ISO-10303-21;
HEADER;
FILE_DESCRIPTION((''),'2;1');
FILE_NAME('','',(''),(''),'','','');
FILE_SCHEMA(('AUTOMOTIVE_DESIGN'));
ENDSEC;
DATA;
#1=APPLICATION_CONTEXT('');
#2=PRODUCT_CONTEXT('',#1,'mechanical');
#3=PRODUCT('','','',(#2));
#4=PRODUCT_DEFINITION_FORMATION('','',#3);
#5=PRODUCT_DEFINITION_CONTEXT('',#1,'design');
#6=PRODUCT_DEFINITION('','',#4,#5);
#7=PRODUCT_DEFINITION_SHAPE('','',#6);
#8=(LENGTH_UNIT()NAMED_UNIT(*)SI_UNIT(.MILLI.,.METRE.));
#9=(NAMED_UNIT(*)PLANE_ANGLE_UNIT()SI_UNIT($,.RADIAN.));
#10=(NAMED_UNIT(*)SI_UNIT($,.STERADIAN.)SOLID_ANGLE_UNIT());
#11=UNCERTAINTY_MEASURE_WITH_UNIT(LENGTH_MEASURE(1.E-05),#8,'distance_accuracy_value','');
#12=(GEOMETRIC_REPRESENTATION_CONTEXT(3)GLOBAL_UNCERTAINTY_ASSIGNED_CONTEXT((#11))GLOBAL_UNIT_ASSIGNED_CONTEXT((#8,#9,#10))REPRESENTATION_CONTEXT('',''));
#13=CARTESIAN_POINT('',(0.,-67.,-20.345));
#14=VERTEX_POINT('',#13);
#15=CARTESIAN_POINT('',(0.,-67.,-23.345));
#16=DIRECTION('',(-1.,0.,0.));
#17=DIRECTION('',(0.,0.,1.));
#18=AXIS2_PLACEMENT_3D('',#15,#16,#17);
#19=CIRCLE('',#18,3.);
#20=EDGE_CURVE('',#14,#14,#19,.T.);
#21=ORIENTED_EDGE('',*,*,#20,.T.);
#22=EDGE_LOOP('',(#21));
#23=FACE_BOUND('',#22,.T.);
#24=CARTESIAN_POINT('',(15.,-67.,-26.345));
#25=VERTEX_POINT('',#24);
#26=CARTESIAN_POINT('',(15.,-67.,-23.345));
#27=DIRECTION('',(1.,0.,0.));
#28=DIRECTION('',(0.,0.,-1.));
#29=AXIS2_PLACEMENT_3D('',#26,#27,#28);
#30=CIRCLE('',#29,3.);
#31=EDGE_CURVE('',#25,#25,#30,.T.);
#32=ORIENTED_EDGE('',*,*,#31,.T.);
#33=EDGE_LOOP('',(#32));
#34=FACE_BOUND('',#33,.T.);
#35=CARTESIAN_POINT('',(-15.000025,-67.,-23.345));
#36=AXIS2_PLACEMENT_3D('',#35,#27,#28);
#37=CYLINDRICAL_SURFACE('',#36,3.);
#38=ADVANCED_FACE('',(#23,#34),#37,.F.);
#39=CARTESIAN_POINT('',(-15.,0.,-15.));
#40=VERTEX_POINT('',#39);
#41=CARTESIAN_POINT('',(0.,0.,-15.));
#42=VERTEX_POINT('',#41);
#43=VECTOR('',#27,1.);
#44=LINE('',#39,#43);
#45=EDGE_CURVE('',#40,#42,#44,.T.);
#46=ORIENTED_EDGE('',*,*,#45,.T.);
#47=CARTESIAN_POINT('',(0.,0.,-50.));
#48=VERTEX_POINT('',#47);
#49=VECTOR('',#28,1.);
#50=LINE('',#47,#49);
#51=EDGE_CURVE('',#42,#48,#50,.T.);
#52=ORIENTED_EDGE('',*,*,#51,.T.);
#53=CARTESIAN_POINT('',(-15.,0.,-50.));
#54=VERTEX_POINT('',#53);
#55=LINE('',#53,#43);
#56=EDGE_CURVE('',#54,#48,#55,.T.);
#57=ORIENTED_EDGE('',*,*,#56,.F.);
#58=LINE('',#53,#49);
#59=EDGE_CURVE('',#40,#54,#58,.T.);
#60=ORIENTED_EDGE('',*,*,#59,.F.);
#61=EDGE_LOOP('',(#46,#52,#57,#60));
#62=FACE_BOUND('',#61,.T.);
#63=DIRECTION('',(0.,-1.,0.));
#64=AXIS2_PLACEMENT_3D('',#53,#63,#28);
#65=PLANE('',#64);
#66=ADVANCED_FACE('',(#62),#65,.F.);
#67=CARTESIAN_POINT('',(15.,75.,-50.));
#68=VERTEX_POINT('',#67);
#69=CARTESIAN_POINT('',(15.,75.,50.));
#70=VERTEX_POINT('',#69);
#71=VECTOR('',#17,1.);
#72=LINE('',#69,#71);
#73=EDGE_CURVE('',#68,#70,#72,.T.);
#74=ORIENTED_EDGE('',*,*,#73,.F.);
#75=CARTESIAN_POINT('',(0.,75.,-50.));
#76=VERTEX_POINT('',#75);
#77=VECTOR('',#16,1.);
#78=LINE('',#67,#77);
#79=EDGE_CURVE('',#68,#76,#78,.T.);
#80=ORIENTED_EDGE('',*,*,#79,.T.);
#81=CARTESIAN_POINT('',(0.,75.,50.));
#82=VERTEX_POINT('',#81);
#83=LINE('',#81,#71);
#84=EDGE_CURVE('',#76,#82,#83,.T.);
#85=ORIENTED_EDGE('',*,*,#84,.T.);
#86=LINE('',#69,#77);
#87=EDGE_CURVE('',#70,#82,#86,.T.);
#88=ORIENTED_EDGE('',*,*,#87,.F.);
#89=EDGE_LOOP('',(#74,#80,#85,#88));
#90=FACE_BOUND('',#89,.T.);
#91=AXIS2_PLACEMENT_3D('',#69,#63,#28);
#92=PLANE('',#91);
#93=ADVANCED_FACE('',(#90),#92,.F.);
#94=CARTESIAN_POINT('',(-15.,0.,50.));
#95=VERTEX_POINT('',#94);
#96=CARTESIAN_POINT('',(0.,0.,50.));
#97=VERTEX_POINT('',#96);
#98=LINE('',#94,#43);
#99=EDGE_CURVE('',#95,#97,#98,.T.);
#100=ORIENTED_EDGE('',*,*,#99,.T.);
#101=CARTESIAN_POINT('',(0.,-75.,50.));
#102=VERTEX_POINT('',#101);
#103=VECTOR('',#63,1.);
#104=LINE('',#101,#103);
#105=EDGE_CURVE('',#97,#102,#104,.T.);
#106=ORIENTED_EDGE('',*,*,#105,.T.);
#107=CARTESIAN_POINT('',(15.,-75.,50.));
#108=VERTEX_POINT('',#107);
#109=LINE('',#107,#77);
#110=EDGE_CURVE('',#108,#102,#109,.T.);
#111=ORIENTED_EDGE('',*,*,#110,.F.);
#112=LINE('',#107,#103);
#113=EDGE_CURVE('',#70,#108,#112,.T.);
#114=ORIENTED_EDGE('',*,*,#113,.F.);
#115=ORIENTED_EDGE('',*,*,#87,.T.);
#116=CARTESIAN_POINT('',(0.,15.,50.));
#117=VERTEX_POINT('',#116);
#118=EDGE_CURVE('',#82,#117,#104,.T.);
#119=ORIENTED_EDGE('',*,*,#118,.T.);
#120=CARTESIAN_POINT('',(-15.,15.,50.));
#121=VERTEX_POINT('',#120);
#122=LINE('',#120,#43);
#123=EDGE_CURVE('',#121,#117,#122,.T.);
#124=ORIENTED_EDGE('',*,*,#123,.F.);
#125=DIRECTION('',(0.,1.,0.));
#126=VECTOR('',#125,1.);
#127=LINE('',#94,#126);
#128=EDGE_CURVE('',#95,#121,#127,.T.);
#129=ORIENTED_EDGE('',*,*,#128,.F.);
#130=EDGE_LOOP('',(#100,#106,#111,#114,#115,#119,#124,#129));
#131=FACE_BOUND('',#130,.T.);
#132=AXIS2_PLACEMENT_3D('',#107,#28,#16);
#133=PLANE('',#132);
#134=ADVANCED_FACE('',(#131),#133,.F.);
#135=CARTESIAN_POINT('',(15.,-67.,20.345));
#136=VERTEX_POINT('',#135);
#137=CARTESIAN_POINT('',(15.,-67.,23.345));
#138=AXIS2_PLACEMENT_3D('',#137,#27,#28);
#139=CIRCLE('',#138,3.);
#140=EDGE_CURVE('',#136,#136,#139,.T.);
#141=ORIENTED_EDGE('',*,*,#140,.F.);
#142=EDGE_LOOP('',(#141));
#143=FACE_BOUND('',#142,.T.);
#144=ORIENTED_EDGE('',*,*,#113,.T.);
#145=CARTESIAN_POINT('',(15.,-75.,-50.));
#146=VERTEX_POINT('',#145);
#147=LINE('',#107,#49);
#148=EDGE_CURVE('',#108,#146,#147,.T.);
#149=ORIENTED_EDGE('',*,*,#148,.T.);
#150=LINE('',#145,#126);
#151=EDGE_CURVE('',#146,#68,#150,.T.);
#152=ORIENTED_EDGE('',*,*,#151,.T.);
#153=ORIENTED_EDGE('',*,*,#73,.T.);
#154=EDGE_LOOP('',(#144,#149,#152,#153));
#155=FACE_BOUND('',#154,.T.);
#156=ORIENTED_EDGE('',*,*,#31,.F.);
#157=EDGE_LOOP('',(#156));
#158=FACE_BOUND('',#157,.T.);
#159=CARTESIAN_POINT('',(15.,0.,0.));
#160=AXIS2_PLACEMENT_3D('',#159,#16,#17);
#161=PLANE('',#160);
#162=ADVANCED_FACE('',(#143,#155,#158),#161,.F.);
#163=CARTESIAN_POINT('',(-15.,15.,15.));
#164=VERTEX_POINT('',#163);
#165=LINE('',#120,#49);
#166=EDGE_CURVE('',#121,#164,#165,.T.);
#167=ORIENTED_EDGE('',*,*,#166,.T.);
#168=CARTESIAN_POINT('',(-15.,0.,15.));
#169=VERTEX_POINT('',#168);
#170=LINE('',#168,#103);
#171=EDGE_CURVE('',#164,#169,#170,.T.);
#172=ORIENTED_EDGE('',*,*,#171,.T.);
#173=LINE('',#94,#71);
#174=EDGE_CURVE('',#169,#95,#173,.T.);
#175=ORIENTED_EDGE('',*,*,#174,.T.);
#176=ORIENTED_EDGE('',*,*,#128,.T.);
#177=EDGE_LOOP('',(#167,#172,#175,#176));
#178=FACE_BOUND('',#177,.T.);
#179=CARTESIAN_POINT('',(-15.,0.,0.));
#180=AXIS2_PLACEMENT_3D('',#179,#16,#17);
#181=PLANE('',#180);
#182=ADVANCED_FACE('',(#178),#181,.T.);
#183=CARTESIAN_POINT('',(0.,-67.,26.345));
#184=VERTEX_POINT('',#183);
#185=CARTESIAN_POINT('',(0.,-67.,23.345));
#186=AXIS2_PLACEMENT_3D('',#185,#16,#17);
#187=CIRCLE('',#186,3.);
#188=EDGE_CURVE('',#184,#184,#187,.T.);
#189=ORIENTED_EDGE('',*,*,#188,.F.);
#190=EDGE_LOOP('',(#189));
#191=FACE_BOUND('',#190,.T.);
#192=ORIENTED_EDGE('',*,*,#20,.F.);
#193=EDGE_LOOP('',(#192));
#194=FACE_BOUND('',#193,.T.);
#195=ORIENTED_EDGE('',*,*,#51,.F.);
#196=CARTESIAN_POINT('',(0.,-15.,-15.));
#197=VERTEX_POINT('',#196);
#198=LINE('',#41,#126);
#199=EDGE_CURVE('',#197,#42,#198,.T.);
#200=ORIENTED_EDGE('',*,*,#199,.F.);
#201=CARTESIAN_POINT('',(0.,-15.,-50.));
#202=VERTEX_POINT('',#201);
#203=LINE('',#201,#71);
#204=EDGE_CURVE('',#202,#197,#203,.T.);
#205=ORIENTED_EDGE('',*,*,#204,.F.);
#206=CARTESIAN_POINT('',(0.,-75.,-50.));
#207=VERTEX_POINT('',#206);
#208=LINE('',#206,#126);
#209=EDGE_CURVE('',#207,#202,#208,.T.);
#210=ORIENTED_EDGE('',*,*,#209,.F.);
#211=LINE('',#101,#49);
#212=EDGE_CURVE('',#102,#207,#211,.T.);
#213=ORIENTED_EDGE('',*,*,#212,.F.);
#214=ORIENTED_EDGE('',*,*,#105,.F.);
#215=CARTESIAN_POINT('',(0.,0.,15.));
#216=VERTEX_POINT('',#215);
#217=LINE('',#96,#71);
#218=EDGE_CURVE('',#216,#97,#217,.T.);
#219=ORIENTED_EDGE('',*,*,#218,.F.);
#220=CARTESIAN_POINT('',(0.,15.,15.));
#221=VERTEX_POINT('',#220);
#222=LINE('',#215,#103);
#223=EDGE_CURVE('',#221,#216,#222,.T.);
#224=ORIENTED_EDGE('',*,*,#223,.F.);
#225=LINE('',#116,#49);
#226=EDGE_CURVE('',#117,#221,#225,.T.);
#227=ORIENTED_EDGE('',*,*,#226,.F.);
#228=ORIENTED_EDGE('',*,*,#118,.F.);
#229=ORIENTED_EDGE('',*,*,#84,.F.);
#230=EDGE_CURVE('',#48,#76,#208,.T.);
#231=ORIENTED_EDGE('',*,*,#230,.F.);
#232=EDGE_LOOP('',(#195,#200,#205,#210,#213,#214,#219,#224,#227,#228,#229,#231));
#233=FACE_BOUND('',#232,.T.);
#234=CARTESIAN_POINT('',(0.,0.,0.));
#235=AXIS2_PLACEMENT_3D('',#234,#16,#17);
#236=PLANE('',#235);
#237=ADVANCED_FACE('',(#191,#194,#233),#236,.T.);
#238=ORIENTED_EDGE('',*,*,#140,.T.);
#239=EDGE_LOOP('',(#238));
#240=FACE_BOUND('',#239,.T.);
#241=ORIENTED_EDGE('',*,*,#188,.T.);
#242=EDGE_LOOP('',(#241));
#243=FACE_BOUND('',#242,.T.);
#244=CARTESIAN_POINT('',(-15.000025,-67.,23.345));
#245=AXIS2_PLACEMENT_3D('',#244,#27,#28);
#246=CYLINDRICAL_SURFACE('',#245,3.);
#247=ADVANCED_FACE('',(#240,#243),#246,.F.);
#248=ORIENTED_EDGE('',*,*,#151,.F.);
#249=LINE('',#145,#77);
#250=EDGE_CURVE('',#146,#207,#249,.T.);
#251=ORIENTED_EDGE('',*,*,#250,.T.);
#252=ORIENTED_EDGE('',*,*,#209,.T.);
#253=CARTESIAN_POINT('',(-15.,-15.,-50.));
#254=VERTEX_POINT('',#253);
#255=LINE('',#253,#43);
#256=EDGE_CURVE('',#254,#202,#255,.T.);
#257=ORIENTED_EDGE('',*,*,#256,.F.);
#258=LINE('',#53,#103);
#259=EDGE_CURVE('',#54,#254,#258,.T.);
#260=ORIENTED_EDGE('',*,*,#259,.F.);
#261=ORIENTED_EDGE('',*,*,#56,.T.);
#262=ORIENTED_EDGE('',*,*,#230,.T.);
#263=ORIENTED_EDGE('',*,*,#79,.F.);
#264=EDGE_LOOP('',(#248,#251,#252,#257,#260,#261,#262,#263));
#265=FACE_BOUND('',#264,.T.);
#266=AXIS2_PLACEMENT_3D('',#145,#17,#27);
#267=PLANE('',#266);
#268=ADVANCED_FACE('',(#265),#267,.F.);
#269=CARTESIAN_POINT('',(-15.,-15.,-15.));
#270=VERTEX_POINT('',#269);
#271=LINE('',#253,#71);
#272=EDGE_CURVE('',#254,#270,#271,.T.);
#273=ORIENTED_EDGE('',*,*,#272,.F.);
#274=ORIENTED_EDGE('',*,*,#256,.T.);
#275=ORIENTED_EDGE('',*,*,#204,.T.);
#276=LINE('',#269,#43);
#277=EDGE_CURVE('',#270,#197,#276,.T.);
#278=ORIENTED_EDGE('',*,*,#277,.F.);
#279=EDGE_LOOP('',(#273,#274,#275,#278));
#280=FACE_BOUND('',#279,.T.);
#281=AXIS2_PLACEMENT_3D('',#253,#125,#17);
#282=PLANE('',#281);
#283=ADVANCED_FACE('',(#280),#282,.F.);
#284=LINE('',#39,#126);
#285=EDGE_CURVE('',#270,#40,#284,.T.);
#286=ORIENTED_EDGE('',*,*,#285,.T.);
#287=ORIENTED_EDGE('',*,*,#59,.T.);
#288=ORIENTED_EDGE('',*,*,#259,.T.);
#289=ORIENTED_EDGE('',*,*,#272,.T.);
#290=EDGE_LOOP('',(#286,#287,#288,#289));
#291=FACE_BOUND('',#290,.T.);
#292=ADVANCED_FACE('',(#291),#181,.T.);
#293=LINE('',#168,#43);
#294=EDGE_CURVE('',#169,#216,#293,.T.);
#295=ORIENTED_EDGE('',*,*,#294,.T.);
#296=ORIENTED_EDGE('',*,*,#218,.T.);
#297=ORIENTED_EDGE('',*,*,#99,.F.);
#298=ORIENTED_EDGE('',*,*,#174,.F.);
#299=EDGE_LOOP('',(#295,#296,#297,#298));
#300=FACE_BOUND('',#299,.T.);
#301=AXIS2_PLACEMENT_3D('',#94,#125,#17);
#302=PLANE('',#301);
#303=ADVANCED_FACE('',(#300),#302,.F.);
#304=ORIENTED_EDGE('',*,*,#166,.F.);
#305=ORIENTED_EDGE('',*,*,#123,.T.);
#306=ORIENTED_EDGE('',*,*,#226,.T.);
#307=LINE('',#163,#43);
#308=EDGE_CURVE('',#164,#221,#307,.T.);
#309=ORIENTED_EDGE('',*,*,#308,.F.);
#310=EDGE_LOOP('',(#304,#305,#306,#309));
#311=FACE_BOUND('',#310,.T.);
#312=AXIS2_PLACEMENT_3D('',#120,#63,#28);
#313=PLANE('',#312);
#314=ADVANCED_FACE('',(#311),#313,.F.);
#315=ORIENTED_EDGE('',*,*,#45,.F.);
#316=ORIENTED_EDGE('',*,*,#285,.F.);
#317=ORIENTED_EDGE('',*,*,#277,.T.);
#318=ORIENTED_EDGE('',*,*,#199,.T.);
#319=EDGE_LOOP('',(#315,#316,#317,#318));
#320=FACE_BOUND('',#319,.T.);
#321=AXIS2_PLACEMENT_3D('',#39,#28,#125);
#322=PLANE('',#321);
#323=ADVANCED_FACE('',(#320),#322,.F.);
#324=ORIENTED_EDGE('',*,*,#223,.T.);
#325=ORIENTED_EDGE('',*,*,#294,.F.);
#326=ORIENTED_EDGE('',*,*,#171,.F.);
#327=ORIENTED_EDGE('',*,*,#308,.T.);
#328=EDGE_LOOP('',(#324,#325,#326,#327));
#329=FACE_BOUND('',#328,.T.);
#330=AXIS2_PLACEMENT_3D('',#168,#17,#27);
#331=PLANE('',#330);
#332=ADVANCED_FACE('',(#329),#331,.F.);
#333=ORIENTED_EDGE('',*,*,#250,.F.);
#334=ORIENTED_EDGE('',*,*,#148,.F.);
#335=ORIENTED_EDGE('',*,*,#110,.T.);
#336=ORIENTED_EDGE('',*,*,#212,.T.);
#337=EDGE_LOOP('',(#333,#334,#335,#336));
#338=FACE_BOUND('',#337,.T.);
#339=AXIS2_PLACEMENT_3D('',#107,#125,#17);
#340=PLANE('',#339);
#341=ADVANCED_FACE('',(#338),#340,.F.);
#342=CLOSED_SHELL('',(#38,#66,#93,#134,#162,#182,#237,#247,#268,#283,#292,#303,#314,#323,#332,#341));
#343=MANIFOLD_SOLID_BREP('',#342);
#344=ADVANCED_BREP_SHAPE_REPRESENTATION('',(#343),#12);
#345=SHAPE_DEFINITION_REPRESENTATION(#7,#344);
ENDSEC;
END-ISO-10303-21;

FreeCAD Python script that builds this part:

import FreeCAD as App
import Part
import Sketcher

V = App.Vector
Q = App.Units.Quantity

doc = App.newDocument("Part")
params = doc.addObject("Spreadsheet::Sheet", "Params")
for row, (alias, value) in enumerate([
    ("sketch1_width", "150 mm"),
    ("sketch1_height", "100 mm"),
    ("pad1_length", "15 mm"),
    ("sketch2_width", "15 mm"),
    ("sketch2_height", "35 mm"),
    ("pad2_length", "15 mm"),
    ("sketch3_diameter", "6 mm"),
], start=1):
    params.set(f"A{row}", alias)
    params.set(f"B{row}", "=" + value)
    params.setAlias(f"B{row}", alias)

body = doc.addObject("PartDesign::Body", "Body")

# Sketch on YZ plane
sketch1 = body.newObject("Sketcher::SketchObject", "Sketch")
sketch1.AttachmentSupport = (doc.getObject("YZ_Plane"), [""])
sketch1.MapMode = "FlatFace"
sketch1.addGeometry(Part.LineSegment(V(75, 50, 0), V(-75, 50, 0)), False)
sketch1.addGeometry(Part.LineSegment(V(-75, 50, 0), V(-75, -50, 0)), False)
sketch1.addGeometry(Part.LineSegment(V(-75, -50, 0), V(75, -50, 0)), False)
sketch1.addGeometry(Part.LineSegment(V(75, -50, 0), V(75, 50, 0)), False)
sketch1.addConstraint(Sketcher.Constraint("Coincident", 0, 2, 1, 1))
sketch1.addConstraint(Sketcher.Constraint("Coincident", 1, 2, 2, 1))
sketch1.addConstraint(Sketcher.Constraint("Coincident", 2, 2, 3, 1))
sketch1.addConstraint(Sketcher.Constraint("Coincident", 3, 2, 0, 1))
sketch1.addConstraint(Sketcher.Constraint("Horizontal", 0))
sketch1.addConstraint(Sketcher.Constraint("Vertical", 1))
sketch1.addConstraint(Sketcher.Constraint("Horizontal", 2))
sketch1.addConstraint(Sketcher.Constraint("Vertical", 3))
sketch1.addConstraint(Sketcher.Constraint("Symmetric", 0, 2, 2, 2, -1, 1))
sketch1.addConstraint(Sketcher.Constraint("DistanceX", 0, 2, 0, 1, Q("150 mm")))
sketch1.addConstraint(Sketcher.Constraint("DistanceY", 1, 2, 1, 1, Q("100 mm")))
sketch1.setExpression("Constraints[9]", "Params.sketch1_width")
sketch1.setExpression("Constraints[10]", "Params.sketch1_height")
pad1 = body.newObject("PartDesign::Pad", "Pad")
pad1.Profile = sketch1
pad1.setExpression("Length", "Params.pad1_length")

# Sketch on YZ plane
sketch2 = body.newObject("Sketcher::SketchObject", "Sketch001")
sketch2.AttachmentSupport = (doc.getObject("YZ_Plane"), [""])
sketch2.MapMode = "FlatFace"
sketch2.addGeometry(Part.LineSegment(V(15, 15, 0), V(0, 15, 0)), False)
sketch2.addGeometry(Part.LineSegment(V(0, 15, 0), V(0, 50, 0)), False)
sketch2.addGeometry(Part.LineSegment(V(0, 50, 0), V(15, 50, 0)), False)
sketch2.addGeometry(Part.LineSegment(V(15, 50, 0), V(15, 15, 0)), False)
sketch2.addGeometry(Part.LineSegment(V(0, -50, 0), V(-15, -50, 0)), False)
sketch2.addGeometry(Part.LineSegment(V(-15, -50, 0), V(-15, -15, 0)), False)
sketch2.addGeometry(Part.LineSegment(V(-15, -15, 0), V(0, -15, 0)), False)
sketch2.addGeometry(Part.LineSegment(V(0, -15, 0), V(0, -50, 0)), False)
sketch2.addConstraint(Sketcher.Constraint("Coincident", 0, 2, 1, 1))
sketch2.addConstraint(Sketcher.Constraint("Coincident", 1, 2, 2, 1))
sketch2.addConstraint(Sketcher.Constraint("Coincident", 2, 2, 3, 1))
sketch2.addConstraint(Sketcher.Constraint("Coincident", 3, 2, 0, 1))
sketch2.addConstraint(Sketcher.Constraint("Coincident", 4, 2, 5, 1))
sketch2.addConstraint(Sketcher.Constraint("Coincident", 5, 2, 6, 1))
sketch2.addConstraint(Sketcher.Constraint("Coincident", 6, 2, 7, 1))
sketch2.addConstraint(Sketcher.Constraint("Coincident", 7, 2, 4, 1))
sketch2.addConstraint(Sketcher.Constraint("Horizontal", 0))
sketch2.addConstraint(Sketcher.Constraint("Vertical", 1))
sketch2.addConstraint(Sketcher.Constraint("Horizontal", 2))
sketch2.addConstraint(Sketcher.Constraint("Vertical", 3))
sketch2.addConstraint(Sketcher.Constraint("Horizontal", 4))
sketch2.addConstraint(Sketcher.Constraint("Vertical", 5))
sketch2.addConstraint(Sketcher.Constraint("Horizontal", 6))
sketch2.addConstraint(Sketcher.Constraint("Vertical", 7))
sketch2.addConstraint(Sketcher.Constraint("Symmetric", 2, 2, 4, 2, -1, 1))
sketch2.addConstraint(Sketcher.Constraint("Symmetric", 0, 2, 6, 2, -1, 1))
sketch2.addConstraint(Sketcher.Constraint("PointOnObject", 0, 2, -2))
sketch2.addConstraint(Sketcher.Constraint("DistanceX", 0, 2, 0, 1, Q("15 mm")))
sketch2.addConstraint(Sketcher.Constraint("DistanceY", 1, 1, 1, 2, Q("35 mm")))
sketch2.addConstraint(Sketcher.Constraint("DistanceY", -1, 1, 0, 2, Q("15 mm")))
sketch2.setExpression("Constraints[19]", "Params.sketch2_width")
sketch2.setExpression("Constraints[20]", "Params.sketch2_height")
pad2 = body.newObject("PartDesign::Pad", "Pad001")
pad2.Profile = sketch2
pad2.setExpression("Length", "Params.pad2_length")
pad2.Reversed = True

# Sketch on YZ plane
sketch3 = body.newObject("Sketcher::SketchObject", "Sketch002")
sketch3.AttachmentSupport = (doc.getObject("YZ_Plane"), [""])
sketch3.MapMode = "FlatFace"
sketch3.AttachmentOffset = App.Placement(V(0, 0, 15), App.Rotation())
sketch3.addGeometry(Part.Circle(V(-67, 23.345, 0), V(0, 0, 1), 3), False)
sketch3.addGeometry(Part.Circle(V(-67, -23.345, 0), V(0, 0, 1), 3), False)
sketch3.addConstraint(Sketcher.Constraint("Equal", 0, 1))
sketch3.addConstraint(Sketcher.Constraint("Symmetric", 0, 3, 1, 3, -1))
sketch3.addConstraint(Sketcher.Constraint("Diameter", 0, Q("6 mm")))
sketch3.addConstraint(Sketcher.Constraint("DistanceX", 0, 3, -1, 1, Q("67 mm")))
sketch3.addConstraint(Sketcher.Constraint("DistanceY", 1, 3, 0, 3, Q("46.69 mm")))
sketch3.setExpression("Constraints[2]", "Params.sketch3_diameter")
pocket1 = body.newObject("PartDesign::Pocket", "Pocket")
pocket1.Profile = sketch3
pocket1.Type = "ThroughAll"

doc.recompute()
